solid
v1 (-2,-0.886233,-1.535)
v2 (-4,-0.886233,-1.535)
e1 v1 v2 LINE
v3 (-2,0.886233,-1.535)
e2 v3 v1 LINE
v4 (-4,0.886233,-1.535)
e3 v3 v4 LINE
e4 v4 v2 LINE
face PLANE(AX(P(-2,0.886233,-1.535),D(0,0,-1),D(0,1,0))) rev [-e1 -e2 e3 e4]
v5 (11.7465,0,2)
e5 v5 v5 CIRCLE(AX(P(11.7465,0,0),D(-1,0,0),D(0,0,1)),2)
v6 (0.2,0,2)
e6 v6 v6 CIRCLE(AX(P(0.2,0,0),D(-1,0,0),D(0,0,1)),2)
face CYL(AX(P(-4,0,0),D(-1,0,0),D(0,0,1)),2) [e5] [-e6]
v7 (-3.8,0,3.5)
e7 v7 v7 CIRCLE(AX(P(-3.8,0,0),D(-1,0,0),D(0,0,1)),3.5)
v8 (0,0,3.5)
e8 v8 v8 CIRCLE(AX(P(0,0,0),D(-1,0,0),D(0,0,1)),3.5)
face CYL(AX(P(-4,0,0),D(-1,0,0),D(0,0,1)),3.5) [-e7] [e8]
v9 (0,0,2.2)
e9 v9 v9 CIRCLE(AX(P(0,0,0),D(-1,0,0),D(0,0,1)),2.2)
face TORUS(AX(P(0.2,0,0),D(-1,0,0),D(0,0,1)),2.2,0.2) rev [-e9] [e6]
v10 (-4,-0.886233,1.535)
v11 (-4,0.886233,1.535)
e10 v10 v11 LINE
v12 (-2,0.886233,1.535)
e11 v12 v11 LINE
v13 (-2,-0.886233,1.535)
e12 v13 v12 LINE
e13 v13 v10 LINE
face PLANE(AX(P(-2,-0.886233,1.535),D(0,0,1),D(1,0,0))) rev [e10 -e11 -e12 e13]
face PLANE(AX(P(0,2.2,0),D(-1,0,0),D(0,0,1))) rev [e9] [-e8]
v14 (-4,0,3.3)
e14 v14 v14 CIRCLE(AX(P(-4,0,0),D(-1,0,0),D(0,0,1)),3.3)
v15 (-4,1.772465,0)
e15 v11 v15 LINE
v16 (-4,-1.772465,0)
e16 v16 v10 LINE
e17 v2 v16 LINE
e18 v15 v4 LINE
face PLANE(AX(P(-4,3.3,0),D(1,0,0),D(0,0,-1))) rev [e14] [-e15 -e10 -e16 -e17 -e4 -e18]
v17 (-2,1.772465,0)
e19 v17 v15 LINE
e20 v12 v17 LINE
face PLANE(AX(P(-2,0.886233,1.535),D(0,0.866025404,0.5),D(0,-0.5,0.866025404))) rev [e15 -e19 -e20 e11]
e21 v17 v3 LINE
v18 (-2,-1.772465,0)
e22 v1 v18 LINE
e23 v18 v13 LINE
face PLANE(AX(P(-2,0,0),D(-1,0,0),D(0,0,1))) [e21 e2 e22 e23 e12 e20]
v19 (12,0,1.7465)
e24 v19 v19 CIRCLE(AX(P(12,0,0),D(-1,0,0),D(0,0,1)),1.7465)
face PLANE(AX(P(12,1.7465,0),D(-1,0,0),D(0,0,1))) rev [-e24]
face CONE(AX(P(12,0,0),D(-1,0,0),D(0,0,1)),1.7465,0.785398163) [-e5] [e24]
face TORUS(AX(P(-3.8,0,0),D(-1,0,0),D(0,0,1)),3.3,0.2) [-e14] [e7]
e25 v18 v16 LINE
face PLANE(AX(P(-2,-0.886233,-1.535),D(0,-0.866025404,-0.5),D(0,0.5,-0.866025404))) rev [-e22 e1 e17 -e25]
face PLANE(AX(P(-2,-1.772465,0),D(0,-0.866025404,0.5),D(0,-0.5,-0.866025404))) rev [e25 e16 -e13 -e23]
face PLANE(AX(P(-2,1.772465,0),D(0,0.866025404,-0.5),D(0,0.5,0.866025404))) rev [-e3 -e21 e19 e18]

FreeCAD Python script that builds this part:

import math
import FreeCAD as App
import Part
import Sketcher
from FreeCAD import Vector
Q = App.Units.Quantity

doc = App.newDocument("Part")
body = doc.addObject("PartDesign::Body", "Body")

# Sketch on XY plane
sketch1 = doc.addObject("Sketcher::SketchObject", "Sketch")
body.addObject(sketch1)
sketch1.AttachmentSupport = (doc.XY_Plane, [""])
sketch1.MapMode = "FlatFace"
sketch1.addGeometry(Part.LineSegment(Vector(11.75, 2, 0), Vector(0.2, 2, 0)), False)
sketch1.addGeometry(Part.ArcOfCircle(Part.Circle(Vector(0.2, 2.2, 0), Vector(0, 0, 1), 0.2), math.radians(-180), math.radians(-90)), False)
sketch1.addGeometry(Part.LineSegment(Vector(0, 2.2, 0), Vector(0, 3.5, 0)), False)
sketch1.addGeometry(Part.LineSegment(Vector(0, 3.5, 0), Vector(-3.8, 3.5, 0)), False)
sketch1.addGeometry(Part.ArcOfCircle(Part.Circle(Vector(-3.8, 3.3, 0), Vector(0, 0, 1), 0.2), math.radians(90), math.radians(180)), False)
sketch1.addGeometry(Part.LineSegment(Vector(-4, 3.3, 0), Vector(-4, 0, 0)), False)
sketch1.addGeometry(Part.LineSegment(Vector(-4, 0, 0), Vector(12, 0, 0)), False)
sketch1.addGeometry(Part.LineSegment(Vector(12, 0, 0), Vector(12, 1.75, 0)), False)
sketch1.addGeometry(Part.LineSegment(Vector(12, 1.75, 0), Vector(11.75, 2, 0)), False)
sketch1.addConstraint(Sketcher.Constraint("Tangent", 0, 2, 1, 2))
sketch1.addConstraint(Sketcher.Constraint("Tangent", 1, 1, 2, 1))
sketch1.addConstraint(Sketcher.Constraint("Coincident", 2, 2, 3, 1))
sketch1.addConstraint(Sketcher.Constraint("Tangent", 3, 2, 4, 1))
sketch1.addConstraint(Sketcher.Constraint("Tangent", 4, 2, 5, 1))
sketch1.addConstraint(Sketcher.Constraint("Coincident", 5, 2, 6, 1))
sketch1.addConstraint(Sketcher.Constraint("Coincident", 6, 2, 7, 1))
sketch1.addConstraint(Sketcher.Constraint("Coincident", 7, 2, 8, 1))
sketch1.addConstraint(Sketcher.Constraint("Coincident", 8, 2, 0, 1))
sketch1.addConstraint(Sketcher.Constraint("Horizontal", 0))
sketch1.addConstraint(Sketcher.Constraint("Vertical", 2))
sketch1.addConstraint(Sketcher.Constraint("Horizontal", 3))
sketch1.addConstraint(Sketcher.Constraint("Vertical", 5))
sketch1.addConstraint(Sketcher.Constraint("Horizontal", 6))
sketch1.addConstraint(Sketcher.Constraint("Vertical", 7))
sketch1.addConstraint(Sketcher.Constraint("Equal", 1, 4))
sketch1.addConstraint(Sketcher.Constraint("PointOnObject", 1, 1, -2))
sketch1.addConstraint(Sketcher.Constraint("PointOnObject", 5, 2, -1))
sketch1.addConstraint(Sketcher.Constraint("Radius", 1, 0.2))
sketch1.addConstraint(Sketcher.Constraint("DistanceX", 6, 1, 6, 2, 16.0))
sketch1.addConstraint(Sketcher.Constraint("Angle", 8, Q("135 deg")))
sketch1.addConstraint(Sketcher.Constraint("DistanceX", 3, 2, 3, 1, 3.8))
sketch1.addConstraint(Sketcher.Constraint("DistanceY", 2, 1, 2, 2, 1.3))
sketch1.addConstraint(Sketcher.Constraint("DistanceY", 5, 2, 5, 1, 3.3))
sketch1.addConstraint(Sketcher.Constraint("DistanceX", 0, 2, 0, 1, 11.5465))
revolution = doc.addObject("PartDesign::Revolution", "Revolution")
body.addObject(revolution)
revolution.Profile = sketch1
revolution.ReferenceAxis = (sketch1, ["H_Axis"])
revolution.Angle = 360

# Sketch on YZ plane
sketch2 = doc.addObject("Sketcher::SketchObject", "Sketch001")
body.addObject(sketch2)
sketch2.AttachmentSupport = (doc.YZ_Plane, [""])
sketch2.MapMode = "FlatFace"
sketch2.AttachmentOffset = App.Placement(Vector(0, 0, -4), App.Rotation())
sketch2.addGeometry(Part.LineSegment(Vector(0.9, 1.5, 0), Vector(1.8, 0, 0)), False)
sketch2.addGeometry(Part.LineSegment(Vector(1.8, 0, 0), Vector(0.9, -1.5, 0)), False)
sketch2.addGeometry(Part.LineSegment(Vector(0.9, -1.5, 0), Vector(-0.9, -1.5, 0)), False)
sketch2.addGeometry(Part.LineSegment(Vector(-0.9, -1.5, 0), Vector(-1.8, 0, 0)), False)
sketch2.addGeometry(Part.LineSegment(Vector(-1.8, 0, 0), Vector(-0.9, 1.5, 0)), False)
sketch2.addGeometry(Part.LineSegment(Vector(-0.9, 1.5, 0), Vector(0.9, 1.5, 0)), False)
sketch2.addConstraint(Sketcher.Constraint("Coincident", 0, 2, 1, 1))
sketch2.addConstraint(Sketcher.Constraint("Coincident", 1, 2, 2, 1))
sketch2.addConstraint(Sketcher.Constraint("Coincident", 2, 2, 3, 1))
sketch2.addConstraint(Sketcher.Constraint("Coincident", 3, 2, 4, 1))
sketch2.addConstraint(Sketcher.Constraint("Coincident", 4, 2, 5, 1))
sketch2.addConstraint(Sketcher.Constraint("Coincident", 5, 2, 0, 1))
sketch2.addConstraint(Sketcher.Constraint("Horizontal", 2))
sketch2.addConstraint(Sketcher.Constraint("Horizontal", 5))
sketch2.addConstraint(Sketcher.Constraint("Symmetric", 0, 2, 3, 2, -1, 1))
sketch2.addConstraint(Sketcher.Constraint("Symmetric", 1, 2, 4, 2, -1, 1))
sketch2.addConstraint(Sketcher.Constraint("PointOnObject", 0, 2, -1))
sketch2.addConstraint(Sketcher.Constraint("Parallel", 0, 3))
sketch2.addConstraint(Sketcher.Constraint("Vertical", 2, 2, 4, 2))
sketch2.addConstraint(Sketcher.Constraint("Angle", 0, Q("-60 deg")))
sketch2.addConstraint(Sketcher.Constraint("DistanceY", 2, 2, 4, 2, 3.07))
sketch2.addConstraint(Sketcher.Constraint("DistanceX", 2, 2, 2, 1, 1.772465))
pocket1 = doc.addObject("PartDesign::Pocket", "Pocket")
body.addObject(pocket1)
pocket1.Profile = sketch2
pocket1.Length = 2
pocket1.Reversed = True

doc.recompute()
